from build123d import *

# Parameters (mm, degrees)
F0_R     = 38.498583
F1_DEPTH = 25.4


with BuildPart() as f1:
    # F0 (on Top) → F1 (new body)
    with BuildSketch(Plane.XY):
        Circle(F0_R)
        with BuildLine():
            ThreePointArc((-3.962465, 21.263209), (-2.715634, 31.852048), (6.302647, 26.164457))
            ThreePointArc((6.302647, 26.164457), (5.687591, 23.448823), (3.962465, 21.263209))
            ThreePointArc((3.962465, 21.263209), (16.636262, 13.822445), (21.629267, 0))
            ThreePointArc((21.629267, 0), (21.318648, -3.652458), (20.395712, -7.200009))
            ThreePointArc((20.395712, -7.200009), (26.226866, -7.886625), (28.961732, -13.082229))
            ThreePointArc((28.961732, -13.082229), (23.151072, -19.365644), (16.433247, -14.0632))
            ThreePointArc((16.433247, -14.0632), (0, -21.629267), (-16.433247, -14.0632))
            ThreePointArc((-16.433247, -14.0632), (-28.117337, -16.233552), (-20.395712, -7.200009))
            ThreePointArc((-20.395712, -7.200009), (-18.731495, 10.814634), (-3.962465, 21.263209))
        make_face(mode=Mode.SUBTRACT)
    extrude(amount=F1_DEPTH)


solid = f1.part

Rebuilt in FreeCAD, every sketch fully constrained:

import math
import FreeCAD as App
import Part
import Sketcher

V = App.Vector
Q = App.Units.Quantity

doc = App.newDocument("Part")
body = doc.addObject("PartDesign::Body", "Body")

sketch1 = body.newObject("Sketcher::SketchObject", "Sketch")
sketch1.AttachmentSupport = (doc.getObject("XY_Plane"), [""])
sketch1.MapMode = "FlatFace"
sketch1.addGeometry(Part.Circle(V(0, 0, 0), V(0, 0, 1), 38.498583), False)
sketch1.addGeometry(Part.ArcOfCircle(Part.Circle(V(-0.000001, 0.000001, 0), V(0, 0, 1), 21.629266), math.radians(100.556158), math.radians(199.44384)), False)
sketch1.addGeometry(Part.ArcOfCircle(Part.Circle(V(0, 26.164457, 0), V(0, 0, 1), 6.302647), math.radians(0.000001), math.radians(231.045832)), False)
sketch1.addGeometry(Part.ArcOfCircle(Part.Circle(V(-0.000001, 26.164457, 0), V(0, 0, 1), 6.302648), math.radians(-51.045829), math.radians(-0.000001)), False)
sketch1.addGeometry(Part.ArcOfCircle(Part.Circle(V(0.000001, 0.000001, 0), V(0, 0, 1), 21.629266), math.radians(-0.000002), math.radians(79.44384)), False)
sketch1.addGeometry(Part.ArcOfCircle(Part.Circle(V(0.000012, -0.000003, 0), V(0, 0, 1), 21.629255), math.radians(-19.443842), math.radians(0.000007)), False)
sketch1.addGeometry(Part.ArcOfCircle(Part.Circle(V(22.659084, -13.082229, 0), V(0, 0, 1), 6.302648), math.radians(0), math.radians(111.045827)), False)
sketch1.addGeometry(Part.ArcOfCircle(Part.Circle(V(22.659085, -13.082229, 0), V(0, 0, 1), 6.302647), math.radians(-171.045831), math.radians(-0.000004)), False)
sketch1.addGeometry(Part.ArcOfCircle(Part.Circle(V(0, 0.000001, 0), V(0, 0, 1), 21.629268), math.radians(-139.443837), math.radians(-40.556163)), False)
sketch1.addGeometry(Part.ArcOfCircle(Part.Circle(V(-22.659085, -13.082228, 0), V(0, 0, 1), 6.302647), math.radians(68.954169), math.radians(351.045829)), False)
sketch1.addConstraint(Sketcher.Constraint("Coincident", 1, 1, 2, 2))
sketch1.addConstraint(Sketcher.Constraint("Tangent", 2, 1, 3, 2))
sketch1.addConstraint(Sketcher.Constraint("Coincident", 3, 1, 4, 2))
sketch1.addConstraint(Sketcher.Constraint("Tangent", 4, 1, 5, 2))
sketch1.addConstraint(Sketcher.Constraint("Coincident", 5, 1, 6, 2))
sketch1.addConstraint(Sketcher.Constraint("Tangent", 6, 1, 7, 2))
sketch1.addConstraint(Sketcher.Constraint("Coincident", 7, 1, 8, 2))
sketch1.addConstraint(Sketcher.Constraint("Coincident", 8, 1, 9, 2))
sketch1.addConstraint(Sketcher.Constraint("Coincident", 9, 1, 1, 2))
sketch1.addConstraint(Sketcher.Constraint("Coincident", 0, 3, -1, 1))
sketch1.addConstraint(Sketcher.Constraint("Coincident", 1, 3, -1, 1))
sketch1.addConstraint(Sketcher.Constraint("Coincident", 4, 3, -1, 1))
sketch1.addConstraint(Sketcher.Constraint("Coincident", 8, 3, -1, 1))
sketch1.addConstraint(Sketcher.Constraint("Equal", 2, 3))
sketch1.addConstraint(Sketcher.Constraint("Equal", 1, 4))
sketch1.addConstraint(Sketcher.Constraint("Equal", 3, 6))
sketch1.addConstraint(Sketcher.Constraint("Equal", 6, 7))
sketch1.addConstraint(Sketcher.Constraint("Equal", 4, 8))
sketch1.addConstraint(Sketcher.Constraint("Equal", 7, 9))
sketch1.addConstraint(Sketcher.Constraint("Symmetric", 6, 3, 9, 3, -2))
sketch1.addConstraint(Sketcher.Constraint("PointOnObject", 2, 3, -2))
sketch1.addConstraint(Sketcher.Constraint("PointOnObject", 4, 1, -1))
sketch1.addConstraint(Sketcher.Constraint("Horizontal", 3, 3, 2, 1))
sketch1.addConstraint(Sketcher.Constraint("Horizontal", 9, 3, 6, 1))
sketch1.addConstraint(Sketcher.Constraint("Diameter", 0, Q("76.997166 mm")))
sketch1.addConstraint(Sketcher.Constraint("Radius", 1, Q("21.629266 mm")))
sketch1.addConstraint(Sketcher.Constraint("Radius", 2, Q("6.302647 mm")))
sketch1.addConstraint(Sketcher.Constraint("Radius", 5, Q("21.629255 mm")))
sketch1.addConstraint(Sketcher.Constraint("DistanceY", 7, 1, -1, 1, Q("14.0632 mm")))
sketch1.addConstraint(Sketcher.Constraint("DistanceX", 5, 3, 5, 1, Q("20.3957 mm")))
sketch1.addConstraint(Sketcher.Constraint("DistanceY", -1, 1, 1, 1, Q("21.263209 mm")))
pad1 = body.newObject("PartDesign::Pad", "Pad")
pad1.Profile = sketch1
pad1.Length = Q("1 in")

doc.recompute()
